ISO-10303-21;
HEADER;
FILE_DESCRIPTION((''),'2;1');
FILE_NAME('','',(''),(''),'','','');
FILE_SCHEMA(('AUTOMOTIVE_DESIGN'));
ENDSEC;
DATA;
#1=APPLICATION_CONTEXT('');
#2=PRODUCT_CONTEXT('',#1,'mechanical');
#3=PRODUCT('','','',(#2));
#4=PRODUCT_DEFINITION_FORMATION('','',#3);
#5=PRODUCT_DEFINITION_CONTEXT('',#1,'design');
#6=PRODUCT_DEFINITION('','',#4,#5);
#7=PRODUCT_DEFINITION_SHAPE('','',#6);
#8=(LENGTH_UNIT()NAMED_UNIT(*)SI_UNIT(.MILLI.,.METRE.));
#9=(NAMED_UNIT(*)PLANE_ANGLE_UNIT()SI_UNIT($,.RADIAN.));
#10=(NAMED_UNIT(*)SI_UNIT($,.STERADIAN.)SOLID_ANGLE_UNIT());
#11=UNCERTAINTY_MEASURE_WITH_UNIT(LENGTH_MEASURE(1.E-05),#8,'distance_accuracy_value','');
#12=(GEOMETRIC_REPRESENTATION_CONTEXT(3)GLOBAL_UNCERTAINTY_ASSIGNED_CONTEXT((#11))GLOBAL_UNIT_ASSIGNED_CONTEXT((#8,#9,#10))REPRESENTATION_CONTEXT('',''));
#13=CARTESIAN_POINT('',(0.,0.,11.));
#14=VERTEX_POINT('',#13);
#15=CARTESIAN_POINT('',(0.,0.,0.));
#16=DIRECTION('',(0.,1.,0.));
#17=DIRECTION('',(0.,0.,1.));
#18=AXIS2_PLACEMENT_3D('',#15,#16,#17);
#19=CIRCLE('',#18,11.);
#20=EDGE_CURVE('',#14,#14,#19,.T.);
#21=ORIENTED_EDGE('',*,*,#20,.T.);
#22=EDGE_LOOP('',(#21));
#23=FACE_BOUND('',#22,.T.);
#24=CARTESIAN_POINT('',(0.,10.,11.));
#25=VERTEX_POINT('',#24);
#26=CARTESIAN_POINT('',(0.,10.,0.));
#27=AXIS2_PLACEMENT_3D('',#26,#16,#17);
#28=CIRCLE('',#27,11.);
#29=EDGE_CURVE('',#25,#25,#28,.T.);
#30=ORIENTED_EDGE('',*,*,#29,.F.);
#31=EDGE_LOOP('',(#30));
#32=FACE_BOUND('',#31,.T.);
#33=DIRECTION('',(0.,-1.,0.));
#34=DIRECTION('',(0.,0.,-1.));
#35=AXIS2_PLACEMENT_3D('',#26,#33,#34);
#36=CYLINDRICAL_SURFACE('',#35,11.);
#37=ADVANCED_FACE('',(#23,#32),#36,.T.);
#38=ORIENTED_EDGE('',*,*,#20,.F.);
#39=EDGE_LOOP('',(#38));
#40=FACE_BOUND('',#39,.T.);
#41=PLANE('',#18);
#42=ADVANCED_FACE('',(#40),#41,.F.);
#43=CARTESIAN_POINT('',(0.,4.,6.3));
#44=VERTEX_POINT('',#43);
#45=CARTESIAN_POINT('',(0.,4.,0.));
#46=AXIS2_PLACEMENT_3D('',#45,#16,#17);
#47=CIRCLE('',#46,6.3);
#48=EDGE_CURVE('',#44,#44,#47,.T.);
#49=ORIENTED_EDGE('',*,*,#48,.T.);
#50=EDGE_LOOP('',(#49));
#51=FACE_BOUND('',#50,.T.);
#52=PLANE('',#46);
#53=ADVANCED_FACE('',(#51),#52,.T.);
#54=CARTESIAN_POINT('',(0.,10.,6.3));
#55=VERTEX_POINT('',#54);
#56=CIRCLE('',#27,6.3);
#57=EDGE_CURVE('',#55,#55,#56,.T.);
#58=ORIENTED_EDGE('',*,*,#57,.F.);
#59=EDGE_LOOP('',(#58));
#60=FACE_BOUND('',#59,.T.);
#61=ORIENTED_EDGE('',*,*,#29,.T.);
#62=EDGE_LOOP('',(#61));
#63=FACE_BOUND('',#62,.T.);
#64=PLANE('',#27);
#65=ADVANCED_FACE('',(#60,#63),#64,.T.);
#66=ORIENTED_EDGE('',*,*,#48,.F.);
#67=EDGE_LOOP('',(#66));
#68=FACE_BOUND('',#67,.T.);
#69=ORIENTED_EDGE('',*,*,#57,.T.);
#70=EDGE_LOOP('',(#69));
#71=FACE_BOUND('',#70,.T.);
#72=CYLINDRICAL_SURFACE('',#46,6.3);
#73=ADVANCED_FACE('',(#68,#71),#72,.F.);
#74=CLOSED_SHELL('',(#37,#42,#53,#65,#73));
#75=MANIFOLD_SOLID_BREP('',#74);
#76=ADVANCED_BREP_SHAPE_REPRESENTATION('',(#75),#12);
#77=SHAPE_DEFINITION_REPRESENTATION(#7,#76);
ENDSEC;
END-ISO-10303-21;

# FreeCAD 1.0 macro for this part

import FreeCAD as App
import Part
import Sketcher

V = App.Vector
Q = App.Units.Quantity

doc = App.newDocument("Part")
body = doc.addObject("PartDesign::Body", "Body")

sketch1 = doc.addObject("Sketcher::SketchObject", "Sketch")
body.addObject(sketch1)
sketch1.AttachmentSupport = (doc.XZ_Plane, [""])
sketch1.MapMode = "FlatFace"
sketch1.addGeometry(Part.Circle(V(0, 0, 0), V(0, 0, 1), 11), False)
sketch1.addConstraint([
    Sketcher.Constraint("Coincident", 0, 3, -1, 1),
    Sketcher.Constraint("Diameter", 0, Q("22 mm")),
])
pad1 = doc.addObject("PartDesign::Pad", "Pad")
body.addObject(pad1)
pad1.Profile = sketch1
pad1.Length = 10
pad1.Reversed = True

sketch2 = doc.addObject("Sketcher::SketchObject", "Sketch001")
body.addObject(sketch2)
sketch2.AttachmentSupport = (doc.XZ_Plane, [""])
sketch2.MapMode = "FlatFace"
sketch2.AttachmentOffset = App.Placement(V(0, 0, -10), App.Rotation())
sketch2.addGeometry(Part.Circle(V(0, 0, 0), V(0, 0, 1), 6.3), False)
sketch2.addConstraint([
    Sketcher.Constraint("Coincident", 0, 3, -1, 1),
    Sketcher.Constraint("Diameter", 0, Q("12.6 mm")),
])
pocket1 = doc.addObject("PartDesign::Pocket", "Pocket")
body.addObject(pocket1)
pocket1.Profile = sketch2
pocket1.Length = 6
pocket1.Reversed = True

doc.recompute()
